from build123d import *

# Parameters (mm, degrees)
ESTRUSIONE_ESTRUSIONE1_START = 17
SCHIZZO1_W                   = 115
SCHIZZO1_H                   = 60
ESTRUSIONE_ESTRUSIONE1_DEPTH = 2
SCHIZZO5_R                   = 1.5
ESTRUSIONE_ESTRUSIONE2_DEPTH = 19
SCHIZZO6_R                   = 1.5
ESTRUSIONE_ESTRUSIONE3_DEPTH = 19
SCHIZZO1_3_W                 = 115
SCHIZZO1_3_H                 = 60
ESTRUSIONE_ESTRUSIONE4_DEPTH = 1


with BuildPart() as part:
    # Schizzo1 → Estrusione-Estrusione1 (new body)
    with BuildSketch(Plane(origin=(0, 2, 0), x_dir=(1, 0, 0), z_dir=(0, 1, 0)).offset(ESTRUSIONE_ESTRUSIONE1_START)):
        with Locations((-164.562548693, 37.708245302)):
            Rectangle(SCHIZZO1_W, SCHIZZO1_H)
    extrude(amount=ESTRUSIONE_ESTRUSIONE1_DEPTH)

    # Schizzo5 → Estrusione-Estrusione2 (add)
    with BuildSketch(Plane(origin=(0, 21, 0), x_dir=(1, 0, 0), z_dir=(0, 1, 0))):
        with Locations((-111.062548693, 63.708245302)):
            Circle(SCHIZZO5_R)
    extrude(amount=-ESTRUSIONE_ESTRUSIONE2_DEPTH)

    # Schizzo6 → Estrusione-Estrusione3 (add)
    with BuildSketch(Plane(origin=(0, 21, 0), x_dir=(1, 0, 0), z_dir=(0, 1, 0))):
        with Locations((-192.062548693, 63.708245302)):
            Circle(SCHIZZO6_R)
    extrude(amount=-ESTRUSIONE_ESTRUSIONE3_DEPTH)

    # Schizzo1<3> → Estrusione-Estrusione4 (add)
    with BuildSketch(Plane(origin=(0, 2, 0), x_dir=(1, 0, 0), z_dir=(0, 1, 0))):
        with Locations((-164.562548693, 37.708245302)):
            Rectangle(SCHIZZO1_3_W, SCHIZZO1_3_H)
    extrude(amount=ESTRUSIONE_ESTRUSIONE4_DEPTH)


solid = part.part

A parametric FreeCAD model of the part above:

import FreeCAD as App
import Part
import Sketcher

doc = App.newDocument("Part")
body = doc.addObject("PartDesign::Body", "Body")

# Sketch on XZ plane
sketch1 = body.newObject("Sketcher::SketchObject", "Sketch")
sketch1.AttachmentSupport = (doc.getObject("XZ_Plane"), [""])
sketch1.MapMode = "FlatFace"
sketch1.AttachmentOffset = App.Placement(App.Vector(0, 0, -19), App.Rotation())
sketch1.addGeometry(Part.LineSegment(App.Vector(-222.062549, -67.708245, 0), App.Vector(-222.062549, -7.708245, 0)), False)
sketch1.addGeometry(Part.LineSegment(App.Vector(-222.062549, -7.708245, 0), App.Vector(-107.062549, -7.708245, 0)), False)
sketch1.addGeometry(Part.LineSegment(App.Vector(-107.062549, -7.708245, 0), App.Vector(-107.062549, -67.708245, 0)), False)
sketch1.addGeometry(Part.LineSegment(App.Vector(-107.062549, -67.708245, 0), App.Vector(-222.062549, -67.708245, 0)), False)
sketch1.addConstraint(Sketcher.Constraint("Coincident", 0, 2, 1, 1))
sketch1.addConstraint(Sketcher.Constraint("Coincident", 1, 2, 2, 1))
sketch1.addConstraint(Sketcher.Constraint("Coincident", 2, 2, 3, 1))
sketch1.addConstraint(Sketcher.Constraint("Coincident", 3, 2, 0, 1))
sketch1.addConstraint(Sketcher.Constraint("Vertical", 0))
sketch1.addConstraint(Sketcher.Constraint("Horizontal", 1))
sketch1.addConstraint(Sketcher.Constraint("Vertical", 2))
sketch1.addConstraint(Sketcher.Constraint("Horizontal", 3))
sketch1.addConstraint(Sketcher.Constraint("DistanceX", 1, 1, 1, 2, 115.0))
sketch1.addConstraint(Sketcher.Constraint("DistanceY", 0, 1, 0, 2, 60.0))
sketch1.addConstraint(Sketcher.Constraint("DistanceX", 0, 2, -1, 1, 222.062549))
sketch1.addConstraint(Sketcher.Constraint("DistanceY", 0, 2, -1, 1, 7.708245))
pad1 = body.newObject("PartDesign::Pad", "Pad")
pad1.Profile = sketch1
pad1.Length = 2
pad1.Reversed = True

# Sketch on XZ plane
sketch2 = body.newObject("Sketcher::SketchObject", "Sketch001")
sketch2.AttachmentSupport = (doc.getObject("XZ_Plane"), [""])
sketch2.MapMode = "FlatFace"
sketch2.AttachmentOffset = App.Placement(App.Vector(0, 0, -21), App.Rotation())
sketch2.addGeometry(Part.Circle(App.Vector(-111.062549, -63.708245, 0), App.Vector(0, 0, 1), 1.5), False)
sketch2.addConstraint(Sketcher.Constraint("Diameter", 0, 3.0))
sketch2.addConstraint(Sketcher.Constraint("DistanceX", 0, 3, -1, 1, 111.062549))
sketch2.addConstraint(Sketcher.Constraint("DistanceY", 0, 3, -1, 1, 63.708245))
pad2 = body.newObject("PartDesign::Pad", "Pad001")
pad2.Profile = sketch2
pad2.Length = 19

# Sketch on XZ plane
sketch3 = body.newObject("Sketcher::SketchObject", "Sketch002")
sketch3.AttachmentSupport = (doc.getObject("XZ_Plane"), [""])
sketch3.MapMode = "FlatFace"
sketch3.AttachmentOffset = App.Placement(App.Vector(0, 0, -21), App.Rotation())
sketch3.addGeometry(Part.Circle(App.Vector(-192.062549, -63.708245, 0), App.Vector(0, 0, 1), 1.5), False)
sketch3.addConstraint(Sketcher.Constraint("Diameter", 0, 3.0))
sketch3.addConstraint(Sketcher.Constraint("DistanceX", 0, 3, -1, 1, 192.062549))
sketch3.addConstraint(Sketcher.Constraint("DistanceY", 0, 3, -1, 1, 63.708245))
pad3 = body.newObject("PartDesign::Pad", "Pad002")
pad3.Profile = sketch3
pad3.Length = 19

# Sketch on XZ plane
sketch4 = body.newObject("Sketcher::SketchObject", "Sketch003")
sketch4.AttachmentSupport = (doc.getObject("XZ_Plane"), [""])
sketch4.MapMode = "FlatFace"
sketch4.AttachmentOffset = App.Placement(App.Vector(0, 0, -2), App.Rotation())
sketch4.addGeometry(Part.LineSegment(App.Vector(-222.062549, -67.708245, 0), App.Vector(-222.062549, -7.708245, 0)), False)
sketch4.addGeometry(Part.LineSegment(App.Vector(-222.062549, -7.708245, 0), App.Vector(-107.062549, -7.708245, 0)), False)
sketch4.addGeometry(Part.LineSegment(App.Vector(-107.062549, -7.708245, 0), App.Vector(-107.062549, -67.708245, 0)), False)
sketch4.addGeometry(Part.LineSegment(App.Vector(-107.062549, -67.708245, 0), App.Vector(-222.062549, -67.708245, 0)), False)
sketch4.addConstraint(Sketcher.Constraint("Coincident", 0, 2, 1, 1))
sketch4.addConstraint(Sketcher.Constraint("Coincident", 1, 2, 2, 1))
sketch4.addConstraint(Sketcher.Constraint("Coincident", 2, 2, 3, 1))
sketch4.addConstraint(Sketcher.Constraint("Coincident", 3, 2, 0, 1))
sketch4.addConstraint(Sketcher.Constraint("Vertical", 0))
sketch4.addConstraint(Sketcher.Constraint("Horizontal", 1))
sketch4.addConstraint(Sketcher.Constraint("Vertical", 2))
sketch4.addConstraint(Sketcher.Constraint("Horizontal", 3))
sketch4.addConstraint(Sketcher.Constraint("DistanceX", 1, 1, 1, 2, 115.0))
sketch4.addConstraint(Sketcher.Constraint("DistanceY", 0, 1, 0, 2, 60.0))
sketch4.addConstraint(Sketcher.Constraint("DistanceX", 0, 2, -1, 1, 222.062549))
sketch4.addConstraint(Sketcher.Constraint("DistanceY", 0, 2, -1, 1, 7.708245))
pad4 = body.newObject("PartDesign::Pad", "Pad003")
pad4.Profile = sketch4
pad4.Length = 1
pad4.Reversed = True

doc.recompute()
